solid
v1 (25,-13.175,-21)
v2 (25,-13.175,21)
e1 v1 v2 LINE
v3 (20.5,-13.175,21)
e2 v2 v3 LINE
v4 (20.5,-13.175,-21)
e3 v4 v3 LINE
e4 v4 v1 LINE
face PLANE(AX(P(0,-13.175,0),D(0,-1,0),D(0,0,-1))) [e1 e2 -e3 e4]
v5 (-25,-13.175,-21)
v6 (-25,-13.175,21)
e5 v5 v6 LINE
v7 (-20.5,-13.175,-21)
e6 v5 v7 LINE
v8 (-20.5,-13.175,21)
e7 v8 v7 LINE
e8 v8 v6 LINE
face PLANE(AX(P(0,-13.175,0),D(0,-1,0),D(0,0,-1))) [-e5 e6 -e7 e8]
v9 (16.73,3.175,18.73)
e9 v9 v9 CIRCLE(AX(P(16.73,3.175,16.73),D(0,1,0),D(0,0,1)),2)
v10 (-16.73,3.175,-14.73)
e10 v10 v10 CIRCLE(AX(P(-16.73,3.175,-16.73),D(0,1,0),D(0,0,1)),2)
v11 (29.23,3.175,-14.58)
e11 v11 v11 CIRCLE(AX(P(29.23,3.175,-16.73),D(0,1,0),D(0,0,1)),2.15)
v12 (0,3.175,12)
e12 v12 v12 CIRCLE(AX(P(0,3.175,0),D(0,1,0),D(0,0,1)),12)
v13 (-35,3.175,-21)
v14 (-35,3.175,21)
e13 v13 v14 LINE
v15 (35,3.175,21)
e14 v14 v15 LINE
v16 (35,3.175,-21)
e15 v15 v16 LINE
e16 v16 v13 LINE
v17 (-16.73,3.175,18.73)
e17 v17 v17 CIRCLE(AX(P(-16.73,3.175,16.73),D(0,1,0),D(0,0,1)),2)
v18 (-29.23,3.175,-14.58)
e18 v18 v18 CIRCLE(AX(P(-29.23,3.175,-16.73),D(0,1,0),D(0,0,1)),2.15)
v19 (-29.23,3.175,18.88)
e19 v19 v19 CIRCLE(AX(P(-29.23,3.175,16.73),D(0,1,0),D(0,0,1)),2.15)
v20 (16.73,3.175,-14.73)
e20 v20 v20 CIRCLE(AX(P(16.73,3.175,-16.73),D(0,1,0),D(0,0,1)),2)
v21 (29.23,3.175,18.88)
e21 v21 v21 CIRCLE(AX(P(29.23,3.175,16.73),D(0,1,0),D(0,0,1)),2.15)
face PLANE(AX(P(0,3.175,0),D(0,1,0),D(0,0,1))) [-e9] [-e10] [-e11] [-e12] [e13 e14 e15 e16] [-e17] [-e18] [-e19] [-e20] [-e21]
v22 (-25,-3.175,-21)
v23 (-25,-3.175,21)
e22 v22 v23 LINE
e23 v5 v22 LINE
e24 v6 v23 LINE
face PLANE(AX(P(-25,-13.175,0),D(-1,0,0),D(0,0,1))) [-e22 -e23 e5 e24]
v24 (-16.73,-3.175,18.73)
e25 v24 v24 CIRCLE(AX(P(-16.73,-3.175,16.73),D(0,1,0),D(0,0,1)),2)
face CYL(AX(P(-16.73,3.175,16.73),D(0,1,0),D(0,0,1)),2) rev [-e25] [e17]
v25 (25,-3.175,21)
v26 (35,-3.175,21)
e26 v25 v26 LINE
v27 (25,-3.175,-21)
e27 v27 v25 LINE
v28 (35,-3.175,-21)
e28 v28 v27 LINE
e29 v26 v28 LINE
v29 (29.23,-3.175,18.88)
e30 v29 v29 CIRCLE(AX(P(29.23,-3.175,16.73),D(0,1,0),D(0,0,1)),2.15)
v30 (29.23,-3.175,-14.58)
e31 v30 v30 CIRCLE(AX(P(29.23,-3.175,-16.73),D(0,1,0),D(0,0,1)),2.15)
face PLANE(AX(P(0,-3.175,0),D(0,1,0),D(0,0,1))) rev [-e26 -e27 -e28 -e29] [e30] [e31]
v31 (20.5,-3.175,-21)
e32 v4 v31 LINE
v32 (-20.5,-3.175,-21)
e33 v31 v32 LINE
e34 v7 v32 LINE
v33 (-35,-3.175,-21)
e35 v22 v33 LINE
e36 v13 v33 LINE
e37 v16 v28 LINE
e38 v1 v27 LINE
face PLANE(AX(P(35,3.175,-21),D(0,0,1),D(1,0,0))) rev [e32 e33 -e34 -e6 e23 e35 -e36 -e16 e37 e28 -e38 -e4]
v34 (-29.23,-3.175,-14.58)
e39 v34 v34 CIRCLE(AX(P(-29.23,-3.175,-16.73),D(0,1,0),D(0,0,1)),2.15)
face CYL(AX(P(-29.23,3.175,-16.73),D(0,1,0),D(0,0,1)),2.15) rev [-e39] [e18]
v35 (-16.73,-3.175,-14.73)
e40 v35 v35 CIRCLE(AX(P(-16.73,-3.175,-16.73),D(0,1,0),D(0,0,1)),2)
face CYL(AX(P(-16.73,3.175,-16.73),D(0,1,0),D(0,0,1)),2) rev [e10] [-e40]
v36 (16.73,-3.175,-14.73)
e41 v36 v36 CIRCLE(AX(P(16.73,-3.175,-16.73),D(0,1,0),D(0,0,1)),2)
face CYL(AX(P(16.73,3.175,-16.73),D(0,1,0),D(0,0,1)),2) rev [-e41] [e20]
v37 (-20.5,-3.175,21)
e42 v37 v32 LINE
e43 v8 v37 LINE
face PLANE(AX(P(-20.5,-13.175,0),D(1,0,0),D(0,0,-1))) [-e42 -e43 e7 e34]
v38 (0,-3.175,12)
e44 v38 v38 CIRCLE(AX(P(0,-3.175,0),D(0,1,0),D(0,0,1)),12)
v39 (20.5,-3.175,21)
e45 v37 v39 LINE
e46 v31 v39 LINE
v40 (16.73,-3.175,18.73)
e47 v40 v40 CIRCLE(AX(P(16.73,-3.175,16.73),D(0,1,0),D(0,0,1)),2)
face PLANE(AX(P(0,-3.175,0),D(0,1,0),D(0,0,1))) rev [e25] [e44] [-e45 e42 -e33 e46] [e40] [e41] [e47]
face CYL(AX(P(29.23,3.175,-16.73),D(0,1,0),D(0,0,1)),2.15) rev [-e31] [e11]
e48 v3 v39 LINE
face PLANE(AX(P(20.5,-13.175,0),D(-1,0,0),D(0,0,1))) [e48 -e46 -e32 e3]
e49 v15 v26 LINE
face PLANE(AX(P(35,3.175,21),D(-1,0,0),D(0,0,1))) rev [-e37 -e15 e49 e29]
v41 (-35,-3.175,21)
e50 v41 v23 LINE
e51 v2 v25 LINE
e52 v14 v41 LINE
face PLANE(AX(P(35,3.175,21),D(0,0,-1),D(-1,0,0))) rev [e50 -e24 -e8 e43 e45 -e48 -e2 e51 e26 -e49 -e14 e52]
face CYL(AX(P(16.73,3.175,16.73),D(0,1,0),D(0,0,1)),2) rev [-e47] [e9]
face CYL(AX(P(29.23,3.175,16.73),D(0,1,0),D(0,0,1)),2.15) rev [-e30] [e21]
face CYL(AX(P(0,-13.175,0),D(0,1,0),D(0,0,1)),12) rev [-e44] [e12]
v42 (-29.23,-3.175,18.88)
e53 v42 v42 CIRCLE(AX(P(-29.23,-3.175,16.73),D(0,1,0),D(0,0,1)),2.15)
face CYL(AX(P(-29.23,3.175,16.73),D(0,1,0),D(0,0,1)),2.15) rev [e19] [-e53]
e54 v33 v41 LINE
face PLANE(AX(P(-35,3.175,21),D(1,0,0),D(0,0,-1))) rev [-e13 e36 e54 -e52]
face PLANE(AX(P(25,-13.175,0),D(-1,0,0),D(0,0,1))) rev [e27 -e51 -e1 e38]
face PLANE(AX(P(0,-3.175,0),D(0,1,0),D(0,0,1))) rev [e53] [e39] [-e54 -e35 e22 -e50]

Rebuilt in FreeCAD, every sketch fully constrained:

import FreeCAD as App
import Part
import Sketcher
from FreeCAD import Vector

doc = App.newDocument("Part")
body = doc.addObject("PartDesign::Body", "Body")

sketch1 = body.newObject("Sketcher::SketchObject", "Sketch")
sketch1.AttachmentSupport = (doc.getObject("XZ_Plane"), [""])
sketch1.MapMode = "FlatFace"
sketch1.addGeometry(Part.LineSegment(Vector(-35, -21, 0), Vector(-35, 21, 0)), False)
sketch1.addGeometry(Part.LineSegment(Vector(-35, 21, 0), Vector(35, 21, 0)), False)
sketch1.addGeometry(Part.LineSegment(Vector(35, 21, 0), Vector(35, -21, 0)), False)
sketch1.addGeometry(Part.LineSegment(Vector(35, -21, 0), Vector(-35, -21, 0)), False)
sketch1.addConstraint(Sketcher.Constraint("Coincident", 0, 2, 1, 1))
sketch1.addConstraint(Sketcher.Constraint("Coincident", 1, 2, 2, 1))
sketch1.addConstraint(Sketcher.Constraint("Coincident", 2, 2, 3, 1))
sketch1.addConstraint(Sketcher.Constraint("Coincident", 3, 2, 0, 1))
sketch1.addConstraint(Sketcher.Constraint("Vertical", 0))
sketch1.addConstraint(Sketcher.Constraint("Horizontal", 1))
sketch1.addConstraint(Sketcher.Constraint("Vertical", 2))
sketch1.addConstraint(Sketcher.Constraint("Horizontal", 3))
sketch1.addConstraint(Sketcher.Constraint("Symmetric", 0, 2, 2, 2, -1, 1))
sketch1.addConstraint(Sketcher.Constraint("DistanceX", 1, 1, 1, 2, 70.0))
sketch1.addConstraint(Sketcher.Constraint("DistanceY", 0, 1, 0, 2, 42.0))
pad1 = body.newObject("PartDesign::Pad", "Pad")
pad1.Profile = sketch1
pad1.Length = 6.35
pad1.Midplane = True

sketch2 = body.newObject("Sketcher::SketchObject", "Sketch001")
sketch2.AttachmentSupport = (doc.getObject("XZ_Plane"), [""])
sketch2.MapMode = "FlatFace"
sketch2.AttachmentOffset = App.Placement(Vector(0, 0, 3.175), App.Rotation())
sketch2.addGeometry(Part.LineSegment(Vector(-25, 21, 0), Vector(-25, -21, 0)), False)
sketch2.addGeometry(Part.LineSegment(Vector(-25, -21, 0), Vector(-20.5, -21, 0)), False)
sketch2.addGeometry(Part.LineSegment(Vector(-20.5, -21, 0), Vector(-20.5, 21, 0)), False)
sketch2.addGeometry(Part.LineSegment(Vector(-20.5, 21, 0), Vector(-25, 21, 0)), False)
sketch2.addGeometry(Part.LineSegment(Vector(20.5, 21, 0), Vector(20.5, -21, 0)), False)
sketch2.addGeometry(Part.LineSegment(Vector(20.5, -21, 0), Vector(25, -21, 0)), False)
sketch2.addGeometry(Part.LineSegment(Vector(25, -21, 0), Vector(25, 21, 0)), False)
sketch2.addGeometry(Part.LineSegment(Vector(25, 21, 0), Vector(20.5, 21, 0)), False)
sketch2.addConstraint(Sketcher.Constraint("Coincident", 0, 2, 1, 1))
sketch2.addConstraint(Sketcher.Constraint("Coincident", 1, 2, 2, 1))
sketch2.addConstraint(Sketcher.Constraint("Coincident", 2, 2, 3, 1))
sketch2.addConstraint(Sketcher.Constraint("Coincident", 3, 2, 0, 1))
sketch2.addConstraint(Sketcher.Constraint("Coincident", 4, 2, 5, 1))
sketch2.addConstraint(Sketcher.Constraint("Coincident", 5, 2, 6, 1))
sketch2.addConstraint(Sketcher.Constraint("Coincident", 6, 2, 7, 1))
sketch2.addConstraint(Sketcher.Constraint("Coincident", 7, 2, 4, 1))
sketch2.addConstraint(Sketcher.Constraint("Vertical", 0))
sketch2.addConstraint(Sketcher.Constraint("Horizontal", 1))
sketch2.addConstraint(Sketcher.Constraint("Vertical", 2))
sketch2.addConstraint(Sketcher.Constraint("Horizontal", 3))
sketch2.addConstraint(Sketcher.Constraint("Vertical", 4))
sketch2.addConstraint(Sketcher.Constraint("Horizontal", 5))
sketch2.addConstraint(Sketcher.Constraint("Vertical", 6))
sketch2.addConstraint(Sketcher.Constraint("Horizontal", 7))
sketch2.addConstraint(Sketcher.Constraint("Symmetric", 2, 2, 4, 2, -1, 1))
sketch2.addConstraint(Sketcher.Constraint("Symmetric", 0, 2, 6, 2, -1, 1))
sketch2.addConstraint(Sketcher.Constraint("Horizontal", 1, 2, 4, 2))
sketch2.addConstraint(Sketcher.Constraint("DistanceY", 0, 2, 0, 1, 42.0))
sketch2.addConstraint(Sketcher.Constraint("DistanceX", 1, 1, 1, 2, 4.5))
sketch2.addConstraint(Sketcher.Constraint("DistanceX", 0, 2, -1, 1, 25.0))
pad2 = body.newObject("PartDesign::Pad", "Pad001")
pad2.Profile = sketch2
pad2.Length = 10

sketch3 = body.newObject("Sketcher::SketchObject", "Sketch002")
sketch3.AttachmentSupport = (doc.getObject("XZ_Plane"), [""])
sketch3.MapMode = "FlatFace"
sketch3.AttachmentOffset = App.Placement(Vector(0, 0, -3.175), App.Rotation())
sketch3.addGeometry(Part.Circle(Vector(-16.7, -16.7, 0), Vector(0, 0, 1), 2), False)
sketch3.addGeometry(Part.Circle(Vector(16.7, -16.7, 0), Vector(0, 0, 1), 2), False)
sketch3.addGeometry(Part.Circle(Vector(16.7, 16.7, 0), Vector(0, 0, 1), 2), False)
sketch3.addGeometry(Part.Circle(Vector(-16.7, 16.7, 0), Vector(0, 0, 1), 2), False)
sketch3.addConstraint(Sketcher.Constraint("Equal", 0, 1))
sketch3.addConstraint(Sketcher.Constraint("Equal", 1, 2))
sketch3.addConstraint(Sketcher.Constraint("Equal", 2, 3))
sketch3.addConstraint(Sketcher.Constraint("Symmetric", 0, 3, 2, 3, -1, 1))
sketch3.addConstraint(Sketcher.Constraint("Symmetric", 1, 3, 3, 3, -1, 1))
sketch3.addConstraint(Sketcher.Constraint("Symmetric", 0, 3, 1, 3, -2))
sketch3.addConstraint(Sketcher.Constraint("Diameter", 0, 4.0))
sketch3.addConstraint(Sketcher.Constraint("DistanceX", 0, 3, -1, 1, 16.73))
sketch3.addConstraint(Sketcher.Constraint("DistanceY", 0, 3, -1, 1, 16.73))
doc.recompute()
hole = body.newObject("PartDesign::Hole", "Hole")
hole.Profile = sketch3
hole.ThreadType = "None"
hole.Diameter = 4
hole.DepthType = "ThroughAll"
hole.Reversed = True

sketch4 = body.newObject("Sketcher::SketchObject", "Sketch003")
sketch4.AttachmentSupport = (doc.getObject("XZ_Plane"), [""])
sketch4.MapMode = "FlatFace"
sketch4.AttachmentOffset = App.Placement(Vector(0, 0, -3.175), App.Rotation())
sketch4.addGeometry(Part.Circle(Vector(-29.2, -16.7, 0), Vector(0, 0, 1), 2.1), False)
sketch4.addGeometry(Part.Circle(Vector(-29.2, 16.7, 0), Vector(0, 0, 1), 2.1), False)
sketch4.addConstraint(Sketcher.Constraint("Equal", 0, 1))
sketch4.addConstraint(Sketcher.Constraint("Symmetric", 0, 3, 1, 3, -1))
sketch4.addConstraint(Sketcher.Constraint("Diameter", 0, 4.3))
sketch4.addConstraint(Sketcher.Constraint("DistanceX", 0, 3, -1, 1, 29.23))
sketch4.addConstraint(Sketcher.Constraint("DistanceY", 0, 3, -1, 1, 16.73))
doc.recompute()
hole2 = body.newObject("PartDesign::Hole", "Hole001")
hole2.Profile = sketch4
hole2.ThreadType = "None"
hole2.Diameter = 4.3
hole2.DepthType = "ThroughAll"
hole2.Reversed = True
doc.recompute()

mirrored = body.newObject("PartDesign::Mirrored", "Mirrored")
mirrored.Originals = [hole2]
mirrored.MirrorPlane = (doc.getObject("YZ_Plane"), [""])
body.Tip = mirrored

sketch5 = body.newObject("Sketcher::SketchObject", "Sketch004")
sketch5.AttachmentSupport = (doc.getObject("XZ_Plane"), [""])
sketch5.MapMode = "FlatFace"
sketch5.AttachmentOffset = App.Placement(Vector(0, 0, -3.175), App.Rotation())
sketch5.addGeometry(Part.Circle(Vector(0, 0, 0), Vector(0, 0, 1), 12), False)
sketch5.addConstraint(Sketcher.Constraint("Coincident", 0, 3, -1, 1))
sketch5.addConstraint(Sketcher.Constraint("Diameter", 0, 24.0))
pocket1 = body.newObject("PartDesign::Pocket", "Pocket")
pocket1.Profile = sketch5
pocket1.Type = "ThroughAll"
pocket1.Reversed = True

doc.recompute()
